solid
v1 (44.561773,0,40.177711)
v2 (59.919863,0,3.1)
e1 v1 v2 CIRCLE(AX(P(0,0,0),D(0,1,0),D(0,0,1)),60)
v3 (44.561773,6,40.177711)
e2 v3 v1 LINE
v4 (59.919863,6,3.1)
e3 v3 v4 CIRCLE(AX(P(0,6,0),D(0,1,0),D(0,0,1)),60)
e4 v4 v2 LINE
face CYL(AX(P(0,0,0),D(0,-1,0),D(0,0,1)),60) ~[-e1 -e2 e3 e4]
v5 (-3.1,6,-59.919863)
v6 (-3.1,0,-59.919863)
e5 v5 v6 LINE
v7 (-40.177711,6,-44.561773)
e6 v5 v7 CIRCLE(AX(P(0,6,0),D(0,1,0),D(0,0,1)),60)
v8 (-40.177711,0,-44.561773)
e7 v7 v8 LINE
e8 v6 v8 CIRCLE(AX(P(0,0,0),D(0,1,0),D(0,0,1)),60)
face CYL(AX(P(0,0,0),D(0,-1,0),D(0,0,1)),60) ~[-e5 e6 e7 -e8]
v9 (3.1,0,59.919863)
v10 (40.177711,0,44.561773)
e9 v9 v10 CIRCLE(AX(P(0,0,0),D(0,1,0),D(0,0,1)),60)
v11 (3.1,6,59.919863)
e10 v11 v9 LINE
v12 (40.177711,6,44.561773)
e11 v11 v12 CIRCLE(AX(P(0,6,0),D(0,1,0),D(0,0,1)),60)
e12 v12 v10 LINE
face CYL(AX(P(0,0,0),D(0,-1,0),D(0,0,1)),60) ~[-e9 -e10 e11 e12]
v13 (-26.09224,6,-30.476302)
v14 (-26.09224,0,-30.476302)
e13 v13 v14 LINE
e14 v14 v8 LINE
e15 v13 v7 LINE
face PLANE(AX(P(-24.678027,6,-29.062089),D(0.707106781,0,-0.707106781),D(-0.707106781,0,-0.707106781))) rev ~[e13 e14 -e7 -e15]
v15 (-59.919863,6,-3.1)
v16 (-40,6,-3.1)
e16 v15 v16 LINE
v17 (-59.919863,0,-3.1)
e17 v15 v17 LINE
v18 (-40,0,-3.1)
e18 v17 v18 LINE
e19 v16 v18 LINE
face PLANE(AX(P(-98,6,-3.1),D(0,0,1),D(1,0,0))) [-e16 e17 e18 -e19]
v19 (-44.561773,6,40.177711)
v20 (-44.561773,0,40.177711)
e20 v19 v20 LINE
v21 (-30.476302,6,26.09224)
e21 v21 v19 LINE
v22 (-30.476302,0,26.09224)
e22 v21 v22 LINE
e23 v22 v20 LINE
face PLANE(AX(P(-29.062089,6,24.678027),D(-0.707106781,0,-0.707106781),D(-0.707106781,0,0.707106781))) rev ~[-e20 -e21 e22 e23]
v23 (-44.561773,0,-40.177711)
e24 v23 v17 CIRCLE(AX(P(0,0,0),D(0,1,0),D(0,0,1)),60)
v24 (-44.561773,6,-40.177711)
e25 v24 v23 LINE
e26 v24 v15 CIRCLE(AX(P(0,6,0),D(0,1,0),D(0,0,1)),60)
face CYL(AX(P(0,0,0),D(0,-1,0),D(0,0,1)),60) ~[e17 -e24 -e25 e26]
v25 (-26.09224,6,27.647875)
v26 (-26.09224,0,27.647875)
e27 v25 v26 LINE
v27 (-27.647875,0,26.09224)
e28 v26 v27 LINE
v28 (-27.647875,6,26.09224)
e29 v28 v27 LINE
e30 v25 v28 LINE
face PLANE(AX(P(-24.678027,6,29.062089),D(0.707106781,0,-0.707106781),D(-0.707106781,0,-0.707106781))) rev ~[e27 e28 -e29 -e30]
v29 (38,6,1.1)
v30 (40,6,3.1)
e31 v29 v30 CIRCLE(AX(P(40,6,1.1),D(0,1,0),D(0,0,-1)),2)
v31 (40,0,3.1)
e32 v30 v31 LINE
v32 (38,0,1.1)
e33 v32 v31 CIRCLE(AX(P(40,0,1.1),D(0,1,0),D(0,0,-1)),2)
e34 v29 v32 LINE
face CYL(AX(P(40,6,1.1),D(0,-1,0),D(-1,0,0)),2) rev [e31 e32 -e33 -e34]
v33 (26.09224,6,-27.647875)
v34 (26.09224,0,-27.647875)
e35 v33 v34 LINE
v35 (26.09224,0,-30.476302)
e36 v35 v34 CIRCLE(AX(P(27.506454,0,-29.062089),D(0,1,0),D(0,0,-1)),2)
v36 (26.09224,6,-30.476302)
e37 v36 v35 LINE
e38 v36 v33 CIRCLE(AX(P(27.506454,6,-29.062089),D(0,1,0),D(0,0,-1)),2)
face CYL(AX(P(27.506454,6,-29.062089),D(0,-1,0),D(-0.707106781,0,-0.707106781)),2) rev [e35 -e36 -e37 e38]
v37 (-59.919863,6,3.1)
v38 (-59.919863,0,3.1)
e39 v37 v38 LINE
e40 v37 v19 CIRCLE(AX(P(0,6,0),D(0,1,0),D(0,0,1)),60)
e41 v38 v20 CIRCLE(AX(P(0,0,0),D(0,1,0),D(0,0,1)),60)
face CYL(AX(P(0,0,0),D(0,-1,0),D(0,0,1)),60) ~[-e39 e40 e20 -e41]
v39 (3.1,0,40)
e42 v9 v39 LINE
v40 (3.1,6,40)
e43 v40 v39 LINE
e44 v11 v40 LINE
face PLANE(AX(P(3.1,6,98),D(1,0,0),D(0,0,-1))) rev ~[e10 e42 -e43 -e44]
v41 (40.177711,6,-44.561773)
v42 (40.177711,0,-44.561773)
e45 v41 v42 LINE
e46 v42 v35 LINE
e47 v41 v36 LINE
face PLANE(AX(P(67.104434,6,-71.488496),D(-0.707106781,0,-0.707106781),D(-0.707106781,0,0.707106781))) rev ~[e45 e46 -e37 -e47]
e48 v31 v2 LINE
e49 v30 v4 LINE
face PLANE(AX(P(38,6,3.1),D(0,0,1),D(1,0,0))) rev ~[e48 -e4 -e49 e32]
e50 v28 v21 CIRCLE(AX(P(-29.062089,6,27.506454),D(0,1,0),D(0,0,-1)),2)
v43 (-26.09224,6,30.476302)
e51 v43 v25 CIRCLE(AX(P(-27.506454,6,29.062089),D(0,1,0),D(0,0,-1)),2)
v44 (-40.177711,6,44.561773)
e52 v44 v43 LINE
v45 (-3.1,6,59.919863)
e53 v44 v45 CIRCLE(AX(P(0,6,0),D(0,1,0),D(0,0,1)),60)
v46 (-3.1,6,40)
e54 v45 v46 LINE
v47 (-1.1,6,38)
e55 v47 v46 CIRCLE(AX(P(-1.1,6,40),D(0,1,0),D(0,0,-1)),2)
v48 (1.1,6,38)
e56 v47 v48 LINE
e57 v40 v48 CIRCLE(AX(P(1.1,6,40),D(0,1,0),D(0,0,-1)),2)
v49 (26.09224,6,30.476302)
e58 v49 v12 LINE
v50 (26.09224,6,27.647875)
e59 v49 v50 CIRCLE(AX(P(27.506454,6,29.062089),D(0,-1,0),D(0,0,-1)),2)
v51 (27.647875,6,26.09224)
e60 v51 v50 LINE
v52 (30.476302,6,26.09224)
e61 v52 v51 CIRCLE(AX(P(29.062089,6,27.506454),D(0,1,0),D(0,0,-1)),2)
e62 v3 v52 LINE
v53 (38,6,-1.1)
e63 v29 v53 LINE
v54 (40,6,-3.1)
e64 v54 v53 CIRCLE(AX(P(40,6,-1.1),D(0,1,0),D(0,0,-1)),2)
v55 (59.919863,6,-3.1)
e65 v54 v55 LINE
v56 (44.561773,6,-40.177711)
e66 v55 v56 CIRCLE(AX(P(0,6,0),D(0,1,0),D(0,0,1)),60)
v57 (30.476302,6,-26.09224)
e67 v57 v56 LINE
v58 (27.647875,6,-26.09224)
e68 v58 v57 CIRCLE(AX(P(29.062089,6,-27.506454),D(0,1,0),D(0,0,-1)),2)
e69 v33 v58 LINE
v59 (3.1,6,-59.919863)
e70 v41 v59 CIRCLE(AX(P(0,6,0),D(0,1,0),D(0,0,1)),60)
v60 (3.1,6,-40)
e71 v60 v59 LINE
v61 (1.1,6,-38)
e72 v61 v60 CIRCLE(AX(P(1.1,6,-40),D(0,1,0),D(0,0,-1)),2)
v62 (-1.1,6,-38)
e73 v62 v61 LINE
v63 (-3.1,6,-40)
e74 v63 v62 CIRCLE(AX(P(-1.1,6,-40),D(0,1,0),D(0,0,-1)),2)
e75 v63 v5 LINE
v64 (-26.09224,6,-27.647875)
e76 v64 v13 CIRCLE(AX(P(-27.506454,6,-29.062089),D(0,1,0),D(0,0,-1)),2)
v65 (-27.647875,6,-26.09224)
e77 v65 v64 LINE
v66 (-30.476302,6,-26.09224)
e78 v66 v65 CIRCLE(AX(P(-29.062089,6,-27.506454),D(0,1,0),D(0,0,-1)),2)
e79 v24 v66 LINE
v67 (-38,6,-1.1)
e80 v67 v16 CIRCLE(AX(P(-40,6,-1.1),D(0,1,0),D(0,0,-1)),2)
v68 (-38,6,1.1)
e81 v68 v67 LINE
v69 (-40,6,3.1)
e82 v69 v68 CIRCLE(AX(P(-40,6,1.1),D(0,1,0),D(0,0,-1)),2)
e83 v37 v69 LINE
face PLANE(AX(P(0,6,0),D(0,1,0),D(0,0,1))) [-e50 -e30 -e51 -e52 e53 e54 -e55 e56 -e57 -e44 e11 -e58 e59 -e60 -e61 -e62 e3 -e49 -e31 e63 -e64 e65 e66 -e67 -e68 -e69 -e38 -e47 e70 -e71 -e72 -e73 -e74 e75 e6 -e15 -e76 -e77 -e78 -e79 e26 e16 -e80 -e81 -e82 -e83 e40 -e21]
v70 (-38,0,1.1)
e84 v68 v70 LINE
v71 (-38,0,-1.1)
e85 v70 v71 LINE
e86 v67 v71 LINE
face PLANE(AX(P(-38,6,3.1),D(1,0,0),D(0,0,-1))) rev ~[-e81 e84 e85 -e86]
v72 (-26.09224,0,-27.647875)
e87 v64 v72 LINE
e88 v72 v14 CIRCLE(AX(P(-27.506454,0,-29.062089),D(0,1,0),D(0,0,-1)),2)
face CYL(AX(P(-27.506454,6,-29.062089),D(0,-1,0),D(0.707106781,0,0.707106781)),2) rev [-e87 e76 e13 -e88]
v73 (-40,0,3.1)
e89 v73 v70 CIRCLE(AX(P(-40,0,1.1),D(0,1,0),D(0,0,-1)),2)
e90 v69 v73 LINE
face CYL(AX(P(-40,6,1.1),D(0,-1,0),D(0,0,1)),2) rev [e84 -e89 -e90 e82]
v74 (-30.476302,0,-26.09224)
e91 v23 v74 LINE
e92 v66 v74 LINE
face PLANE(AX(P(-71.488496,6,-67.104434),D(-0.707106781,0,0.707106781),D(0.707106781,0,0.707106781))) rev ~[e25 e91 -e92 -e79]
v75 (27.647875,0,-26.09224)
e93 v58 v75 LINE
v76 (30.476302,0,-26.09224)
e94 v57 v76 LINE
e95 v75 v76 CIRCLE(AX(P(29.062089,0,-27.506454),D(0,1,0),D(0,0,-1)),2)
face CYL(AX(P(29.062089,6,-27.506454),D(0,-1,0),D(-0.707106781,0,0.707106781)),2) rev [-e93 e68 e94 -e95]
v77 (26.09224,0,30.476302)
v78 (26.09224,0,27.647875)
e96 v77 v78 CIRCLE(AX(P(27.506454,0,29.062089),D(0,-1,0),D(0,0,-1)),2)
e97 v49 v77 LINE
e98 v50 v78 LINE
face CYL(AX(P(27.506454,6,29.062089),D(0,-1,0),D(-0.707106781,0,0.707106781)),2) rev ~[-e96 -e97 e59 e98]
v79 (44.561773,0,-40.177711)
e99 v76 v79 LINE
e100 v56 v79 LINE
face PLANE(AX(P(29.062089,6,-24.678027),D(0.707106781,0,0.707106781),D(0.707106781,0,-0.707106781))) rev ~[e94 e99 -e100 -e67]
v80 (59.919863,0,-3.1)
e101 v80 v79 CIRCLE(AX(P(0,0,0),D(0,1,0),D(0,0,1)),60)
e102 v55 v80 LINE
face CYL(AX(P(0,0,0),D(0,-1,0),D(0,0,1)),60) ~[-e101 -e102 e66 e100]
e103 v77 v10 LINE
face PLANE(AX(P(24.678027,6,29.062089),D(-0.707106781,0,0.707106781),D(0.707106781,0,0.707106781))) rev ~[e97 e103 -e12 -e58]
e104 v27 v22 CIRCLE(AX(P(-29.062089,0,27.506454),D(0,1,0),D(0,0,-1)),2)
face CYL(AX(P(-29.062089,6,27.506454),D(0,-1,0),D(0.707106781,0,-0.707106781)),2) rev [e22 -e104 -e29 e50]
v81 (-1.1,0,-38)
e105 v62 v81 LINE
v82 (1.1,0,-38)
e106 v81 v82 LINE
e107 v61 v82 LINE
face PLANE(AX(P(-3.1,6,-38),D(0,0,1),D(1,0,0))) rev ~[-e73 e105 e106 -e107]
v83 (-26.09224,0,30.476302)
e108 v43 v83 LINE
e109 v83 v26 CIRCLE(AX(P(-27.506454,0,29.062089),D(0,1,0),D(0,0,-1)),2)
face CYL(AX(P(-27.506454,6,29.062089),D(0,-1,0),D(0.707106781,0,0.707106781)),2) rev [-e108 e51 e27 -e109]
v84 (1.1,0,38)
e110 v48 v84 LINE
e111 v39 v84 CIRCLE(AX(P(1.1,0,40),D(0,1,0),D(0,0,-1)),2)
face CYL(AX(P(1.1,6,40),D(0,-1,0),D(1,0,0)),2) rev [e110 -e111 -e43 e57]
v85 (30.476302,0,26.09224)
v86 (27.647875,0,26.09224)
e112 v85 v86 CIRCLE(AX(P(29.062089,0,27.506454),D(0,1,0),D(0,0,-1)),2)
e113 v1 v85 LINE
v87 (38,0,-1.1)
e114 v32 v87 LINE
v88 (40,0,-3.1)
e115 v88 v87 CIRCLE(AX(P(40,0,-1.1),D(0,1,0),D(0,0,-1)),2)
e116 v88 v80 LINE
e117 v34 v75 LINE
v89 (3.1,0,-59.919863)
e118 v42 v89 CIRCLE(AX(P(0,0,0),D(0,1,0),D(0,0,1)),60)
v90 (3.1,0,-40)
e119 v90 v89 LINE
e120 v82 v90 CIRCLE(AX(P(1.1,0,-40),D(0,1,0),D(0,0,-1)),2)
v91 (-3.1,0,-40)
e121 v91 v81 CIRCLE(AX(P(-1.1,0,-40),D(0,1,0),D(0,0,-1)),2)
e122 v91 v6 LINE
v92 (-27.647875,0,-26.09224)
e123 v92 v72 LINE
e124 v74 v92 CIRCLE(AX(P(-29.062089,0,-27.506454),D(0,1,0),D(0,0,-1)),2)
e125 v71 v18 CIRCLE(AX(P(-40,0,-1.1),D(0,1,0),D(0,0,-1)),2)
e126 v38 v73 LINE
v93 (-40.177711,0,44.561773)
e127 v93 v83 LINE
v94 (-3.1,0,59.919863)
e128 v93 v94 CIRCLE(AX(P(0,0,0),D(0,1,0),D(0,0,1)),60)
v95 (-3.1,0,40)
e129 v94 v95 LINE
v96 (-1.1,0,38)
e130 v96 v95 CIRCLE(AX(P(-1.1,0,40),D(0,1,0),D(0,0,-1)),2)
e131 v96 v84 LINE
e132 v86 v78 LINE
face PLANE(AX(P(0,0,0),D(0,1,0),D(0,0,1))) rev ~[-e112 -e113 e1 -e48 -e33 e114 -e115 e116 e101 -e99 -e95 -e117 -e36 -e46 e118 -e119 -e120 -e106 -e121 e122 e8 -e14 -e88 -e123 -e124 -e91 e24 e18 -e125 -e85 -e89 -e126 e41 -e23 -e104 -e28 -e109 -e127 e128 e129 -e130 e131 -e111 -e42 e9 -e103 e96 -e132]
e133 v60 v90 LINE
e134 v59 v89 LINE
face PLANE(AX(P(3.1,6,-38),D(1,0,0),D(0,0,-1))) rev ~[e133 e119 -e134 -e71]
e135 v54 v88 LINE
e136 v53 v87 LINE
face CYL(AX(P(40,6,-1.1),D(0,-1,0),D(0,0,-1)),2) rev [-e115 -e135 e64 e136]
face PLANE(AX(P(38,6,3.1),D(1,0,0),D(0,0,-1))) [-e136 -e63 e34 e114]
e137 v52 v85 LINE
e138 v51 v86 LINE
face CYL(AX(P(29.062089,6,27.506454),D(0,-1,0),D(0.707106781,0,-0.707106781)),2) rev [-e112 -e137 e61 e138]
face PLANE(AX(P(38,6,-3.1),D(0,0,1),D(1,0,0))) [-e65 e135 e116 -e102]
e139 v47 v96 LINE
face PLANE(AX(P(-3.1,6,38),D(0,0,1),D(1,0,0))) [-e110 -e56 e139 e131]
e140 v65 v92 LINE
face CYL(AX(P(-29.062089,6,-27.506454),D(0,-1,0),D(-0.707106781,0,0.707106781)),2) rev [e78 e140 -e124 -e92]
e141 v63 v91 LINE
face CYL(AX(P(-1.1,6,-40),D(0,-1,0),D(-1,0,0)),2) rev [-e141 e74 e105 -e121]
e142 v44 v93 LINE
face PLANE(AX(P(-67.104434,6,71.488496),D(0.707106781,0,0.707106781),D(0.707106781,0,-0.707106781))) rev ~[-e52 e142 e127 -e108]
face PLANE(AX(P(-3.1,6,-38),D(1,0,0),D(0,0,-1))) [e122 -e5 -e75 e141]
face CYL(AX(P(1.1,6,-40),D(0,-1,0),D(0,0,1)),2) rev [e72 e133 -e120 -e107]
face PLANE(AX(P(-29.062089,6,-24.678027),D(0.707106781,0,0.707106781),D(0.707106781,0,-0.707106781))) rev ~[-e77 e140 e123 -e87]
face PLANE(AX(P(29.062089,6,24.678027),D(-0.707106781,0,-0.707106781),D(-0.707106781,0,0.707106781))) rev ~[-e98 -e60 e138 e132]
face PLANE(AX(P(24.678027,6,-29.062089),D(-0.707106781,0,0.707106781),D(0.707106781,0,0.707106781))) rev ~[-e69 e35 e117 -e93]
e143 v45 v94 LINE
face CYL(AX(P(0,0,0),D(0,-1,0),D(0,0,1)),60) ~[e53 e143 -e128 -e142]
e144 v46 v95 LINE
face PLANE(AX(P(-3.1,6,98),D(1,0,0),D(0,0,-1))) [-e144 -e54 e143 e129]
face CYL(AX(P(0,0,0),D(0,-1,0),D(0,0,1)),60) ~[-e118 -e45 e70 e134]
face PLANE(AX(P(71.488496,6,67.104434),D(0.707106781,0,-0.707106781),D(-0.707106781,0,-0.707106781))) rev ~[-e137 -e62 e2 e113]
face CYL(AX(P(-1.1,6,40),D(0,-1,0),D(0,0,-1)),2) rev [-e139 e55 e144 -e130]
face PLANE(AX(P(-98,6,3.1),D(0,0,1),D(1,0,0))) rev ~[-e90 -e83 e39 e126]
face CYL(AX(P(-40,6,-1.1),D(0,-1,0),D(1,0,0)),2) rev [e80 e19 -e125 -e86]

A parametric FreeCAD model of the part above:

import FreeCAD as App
import Part
import Sketcher
from FreeCAD import Vector


def edges_at(feature, points):
    """Names of the edges that pass closest to the given points."""
    edges = feature.Shape.Edges
    near = lambda p: min(range(len(edges)), key=lambda i: edges[i].distToShape(Part.Vertex(*p))[0])
    return sorted({f"Edge{near(p) + 1}" for p in points})


def add_polygon(sketch, points):
    """Adds a closed chain of lines whose ends are joined by coincident constraints."""
    first, n = sketch.GeometryCount, len(points)
    for a, b in zip(points, points[1:] + points[:1]):
        sketch.addGeometry(Part.LineSegment(App.Vector(*a, 0), App.Vector(*b, 0)), False)
    for i in range(n):
        sketch.addConstraint(Sketcher.Constraint("Coincident", first + i, 2, first + (i + 1) % n, 1))

doc = App.newDocument("Part")
params = doc.addObject("Spreadsheet::Sheet", "Params")
for row, (alias, value) in enumerate([
    ("sketch1_diameter", "120 mm"),
    ("pad1_length", "6 mm"),
    ("sketch2_width", "60 mm"),
    ("sketch2_length", "60 mm"),
    ("sketch2_width2", "6.2 mm"),
    ("sketch2_length2", "6.2 mm"),
    ("pocket1_length", "6 mm"),
    ("fillet_radius", "2 mm"),
], start=1):
    params.set(f"A{row}", alias)
    params.set(f"B{row}", "=" + value)
    params.setAlias(f"B{row}", alias)

body = doc.addObject("PartDesign::Body", "Body")

# Sketch on XZ plane
sketch1 = doc.addObject("Sketcher::SketchObject", "Sketch")
body.addObject(sketch1)
sketch1.AttachmentSupport = (doc.XZ_Plane, [""])
sketch1.MapMode = "FlatFace"
sketch1.addGeometry(Part.Circle(Vector(0, 0, 0), Vector(0, 0, 1), 60), False)
sketch1.addConstraint([
    Sketcher.Constraint("Coincident", 0, 3, -1, 1),
    Sketcher.Constraint("Diameter", 0, 120.0),
])
sketch1.setExpression("Constraints[1]", "Params.sketch1_diameter")
pad1 = doc.addObject("PartDesign::Pad", "Pad")
body.addObject(pad1)
pad1.Profile = sketch1
pad1.setExpression("Length", "Params.pad1_length")
pad1.Reversed = True

# Sketch on XZ plane
sketch2 = doc.addObject("Sketcher::SketchObject", "Sketch001")
body.addObject(sketch2)
sketch2.AttachmentSupport = (doc.XZ_Plane, [""])
sketch2.MapMode = "FlatFace"
sketch2.AttachmentOffset = App.Placement(Vector(0, 0, -6), App.Rotation())
add_polygon(sketch2, [(38, -3.1), (38, 3.1), (98, 3.1), (98, -3.1)])  # lines 0-3
add_polygon(sketch2, [(24.678027, 29.062089), (67.104434, 71.488496), (71.488496, 67.104434), (29.062089, 24.678027)])  # lines 4-7
add_polygon(sketch2, [(-3.1, 38), (-3.1, 98), (3.1, 98), (3.1, 38)])  # lines 8-11
add_polygon(sketch2, [(-29.062089, 24.678027), (-71.488496, 67.104434), (-67.104434, 71.488496), (-24.678027, 29.062089)])  # lines 12-15
add_polygon(sketch2, [(-98, -3.1), (-98, 3.1), (-38, 3.1), (-38, -3.1)])  # lines 16-19
add_polygon(sketch2, [(-24.678027, -29.062089), (-67.104434, -71.488496), (-71.488496, -67.104434), (-29.062089, -24.678027)])  # lines 20-23
add_polygon(sketch2, [(-3.1, -98), (-3.1, -38), (3.1, -38), (3.1, -98)])  # lines 24-27
add_polygon(sketch2, [(29.062089, -24.678027), (71.488496, -67.104434), (67.104434, -71.488496), (24.678027, -29.062089)])  # lines 28-31
sketch2.addConstraint([
    Sketcher.Constraint("Vertical", 0),
    Sketcher.Constraint("Horizontal", 1),
    Sketcher.Constraint("Vertical", 2),
    Sketcher.Constraint("Horizontal", 3),
    Sketcher.Constraint("Vertical", 8),
    Sketcher.Constraint("Horizontal", 9),
    Sketcher.Constraint("Vertical", 10),
    Sketcher.Constraint("Horizontal", 11),
    Sketcher.Constraint("Vertical", 16),
    Sketcher.Constraint("Horizontal", 17),
    Sketcher.Constraint("Vertical", 18),
    Sketcher.Constraint("Horizontal", 19),
    Sketcher.Constraint("Vertical", 24),
    Sketcher.Constraint("Horizontal", 25),
    Sketcher.Constraint("Vertical", 26),
    Sketcher.Constraint("Horizontal", 27),
    Sketcher.Constraint("Symmetric", 2, 2, 16, 2, -1, 1),
    Sketcher.Constraint("Symmetric", 0, 2, 18, 2, -1, 1),
    Sketcher.Constraint("Symmetric", 4, 2, 20, 2, -1, 1),
    Sketcher.Constraint("Symmetric", 5, 2, 21, 2, -1, 1),
    Sketcher.Constraint("Symmetric", 6, 2, 22, 2, -1, 1),
    Sketcher.Constraint("Symmetric", 7, 2, 23, 2, -1, 1),
    Sketcher.Constraint("Symmetric", 10, 2, 24, 2, -1, 1),
    Sketcher.Constraint("Symmetric", 8, 2, 26, 2, -1, 1),
    Sketcher.Constraint("Symmetric", 12, 2, 28, 2, -1, 1),
    Sketcher.Constraint("Symmetric", 13, 2, 29, 2, -1, 1),
    Sketcher.Constraint("Symmetric", 14, 2, 30, 2, -1, 1),
    Sketcher.Constraint("Symmetric", 15, 2, 31, 2, -1, 1),
    Sketcher.Constraint("Symmetric", 5, 2, 12, 2, -2),
    Sketcher.Constraint("Symmetric", 4, 2, 13, 2, -2),
    Sketcher.Constraint("Symmetric", 7, 2, 14, 2, -2),
    Sketcher.Constraint("Symmetric", 6, 2, 15, 2, -2),
    Sketcher.Constraint("Perpendicular", 4, 5),
    Sketcher.Constraint("Perpendicular", 5, 6),
    Sketcher.Constraint("Perpendicular", 6, 7),
    Sketcher.Constraint("Parallel", 7, 12),
    Sketcher.Constraint("Horizontal", 1, 2, 16, 2),
    Sketcher.Constraint("Vertical", 11, 2, 24, 2),
    Sketcher.Constraint("Equal", 27, 0),
    Sketcher.Constraint("Equal", 19, 8),
    Sketcher.Constraint("DistanceX", 1, 1, 1, 2, 60.0),
    Sketcher.Constraint("Distance", 4, 60.0),
    Sketcher.Constraint("DistanceX", 9, 1, 9, 2, 6.2),
    Sketcher.Constraint("DistanceX", -1, 1, 0, 2, 38.0),
    Sketcher.Constraint("DistanceY", -1, 1, 8, 2, 98.0),
    Sketcher.Constraint("Distance", 5, 6.2),
    Sketcher.Constraint("DistanceX", -1, 1, 6, 2, 29.062089),
    Sketcher.Constraint("DistanceY", -1, 1, 7, 2, 29.062089),
])
sketch2.setExpression("Constraints[72]", "Params.sketch2_width")
sketch2.setExpression("Constraints[73]", "Params.sketch2_length")
sketch2.setExpression("Constraints[74]", "Params.sketch2_width2")
sketch2.setExpression("Constraints[77]", "Params.sketch2_length2")
pocket1 = doc.addObject("PartDesign::Pocket", "Pocket")
body.addObject(pocket1)
pocket1.Profile = sketch2
pocket1.setExpression("Length", "Params.pocket1_length")
pocket1.Reversed = True
doc.recompute()

fillet = doc.addObject("PartDesign::Fillet", "Fillet")
body.addObject(fillet)
fillet.Base = (pocket1, edges_at(pocket1, [
    (29.062, 3, 24.678),
    (24.678, 3, 29.062),
    (38, 3, -3.1),
    (38, 3, 3.1),
    (24.678, 3, -29.062),
    (29.062, 3, -24.678),
    (-3.1, 3, -38),
    (3.1, 3, -38),
    (-29.062, 3, -24.678),
    (-24.678, 3, -29.062),
    (-38, 3, 3.1),
    (-38, 3, -3.1),
    (-24.678, 3, 29.062),
    (-29.062, 3, 24.678),
    (3.1, 3, 38),
    (-3.1, 3, 38),
]))
fillet.setExpression("Radius", "Params.fillet_radius")

doc.recompute()
